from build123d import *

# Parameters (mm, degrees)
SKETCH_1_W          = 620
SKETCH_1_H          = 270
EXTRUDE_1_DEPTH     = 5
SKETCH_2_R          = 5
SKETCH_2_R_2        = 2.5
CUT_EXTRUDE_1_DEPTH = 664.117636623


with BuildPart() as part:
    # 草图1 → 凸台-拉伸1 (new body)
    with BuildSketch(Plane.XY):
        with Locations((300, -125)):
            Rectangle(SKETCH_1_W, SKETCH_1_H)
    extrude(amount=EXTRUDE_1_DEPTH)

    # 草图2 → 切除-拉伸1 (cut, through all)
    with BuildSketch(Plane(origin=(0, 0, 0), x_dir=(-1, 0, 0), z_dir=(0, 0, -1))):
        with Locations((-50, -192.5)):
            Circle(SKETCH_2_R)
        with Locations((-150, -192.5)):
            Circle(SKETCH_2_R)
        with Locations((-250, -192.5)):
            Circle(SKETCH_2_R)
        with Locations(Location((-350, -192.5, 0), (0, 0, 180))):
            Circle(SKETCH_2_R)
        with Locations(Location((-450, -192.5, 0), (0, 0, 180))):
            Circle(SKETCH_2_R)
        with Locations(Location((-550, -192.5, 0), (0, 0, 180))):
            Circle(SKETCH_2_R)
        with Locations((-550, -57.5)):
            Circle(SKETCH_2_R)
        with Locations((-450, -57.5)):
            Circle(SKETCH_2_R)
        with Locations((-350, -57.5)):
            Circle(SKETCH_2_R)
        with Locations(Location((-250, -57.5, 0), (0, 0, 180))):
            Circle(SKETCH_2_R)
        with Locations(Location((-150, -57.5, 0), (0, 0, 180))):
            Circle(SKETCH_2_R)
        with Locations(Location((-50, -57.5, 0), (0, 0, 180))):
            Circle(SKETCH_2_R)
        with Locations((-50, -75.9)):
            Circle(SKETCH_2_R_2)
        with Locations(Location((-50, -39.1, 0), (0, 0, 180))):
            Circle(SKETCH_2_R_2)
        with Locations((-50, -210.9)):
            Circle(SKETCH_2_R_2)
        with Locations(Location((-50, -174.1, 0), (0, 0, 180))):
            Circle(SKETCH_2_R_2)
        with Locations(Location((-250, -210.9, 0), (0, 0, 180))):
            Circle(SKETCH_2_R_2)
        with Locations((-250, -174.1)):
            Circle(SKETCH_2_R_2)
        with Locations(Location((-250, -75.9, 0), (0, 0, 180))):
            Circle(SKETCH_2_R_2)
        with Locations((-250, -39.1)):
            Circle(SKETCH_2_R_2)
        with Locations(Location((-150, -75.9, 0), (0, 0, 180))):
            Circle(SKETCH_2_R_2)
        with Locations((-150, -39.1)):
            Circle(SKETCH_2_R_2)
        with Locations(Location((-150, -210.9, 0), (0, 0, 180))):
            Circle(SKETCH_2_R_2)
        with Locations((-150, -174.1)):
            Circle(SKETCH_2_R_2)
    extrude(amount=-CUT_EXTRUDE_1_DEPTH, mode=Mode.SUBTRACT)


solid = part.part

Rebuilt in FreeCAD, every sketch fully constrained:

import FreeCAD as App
import Part
import Sketcher
Q = App.Units.Quantity


def add_polygon(sketch, points):
    """Adds a closed chain of lines whose ends are joined by coincident constraints."""
    first, n = sketch.GeometryCount, len(points)
    for a, b in zip(points, points[1:] + points[:1]):
        sketch.addGeometry(Part.LineSegment(App.Vector(*a, 0), App.Vector(*b, 0)), False)
    for i in range(n):
        sketch.addConstraint(Sketcher.Constraint("Coincident", first + i, 2, first + (i + 1) % n, 1))

doc = App.newDocument("Part")
body = doc.addObject("PartDesign::Body", "Body")

sketch1 = body.newObject("Sketcher::SketchObject", "Sketch")
sketch1.AttachmentSupport = (doc.getObject("XY_Plane"), [""])
sketch1.MapMode = "FlatFace"
add_polygon(sketch1, [(-10, 10), (-10, -260), (610, -260), (610, 10)])
sketch1.addConstraint([
    Sketcher.Constraint("Vertical", 0),
    Sketcher.Constraint("Horizontal", 1),
    Sketcher.Constraint("Vertical", 2),
    Sketcher.Constraint("Horizontal", 3),
    Sketcher.Constraint("DistanceX", 1, 1, 1, 2, Q("620 mm")),
    Sketcher.Constraint("DistanceY", 0, 2, 0, 1, Q("270 mm")),
    Sketcher.Constraint("DistanceX", 0, 2, -1, 1, Q("10 mm")),
    Sketcher.Constraint("DistanceY", 0, 2, -1, 1, Q("260 mm")),
])
pad1 = body.newObject("PartDesign::Pad", "Pad")
pad1.Profile = sketch1
pad1.Length = 5

sketch2 = body.newObject("Sketcher::SketchObject", "Sketch001")
sketch2.AttachmentSupport = (doc.getObject("XY_Plane"), [""])
sketch2.MapMode = "FlatFace"
sketch2.addGeometry([
    Part.Circle(App.Vector(50, -192.5, 0), App.Vector(0, 0, 1), 5),
    Part.Circle(App.Vector(150, -192.5, 0), App.Vector(0, 0, 1), 5),
    Part.Circle(App.Vector(250, -192.5, 0), App.Vector(0, 0, 1), 5),
    Part.Circle(App.Vector(350, -192.5, 0), App.Vector(0, 0, 1), 5),
    Part.Circle(App.Vector(450, -192.5, 0), App.Vector(0, 0, 1), 5),
    Part.Circle(App.Vector(550, -192.5, 0), App.Vector(0, 0, 1), 5),
    Part.Circle(App.Vector(550, -57.5, 0), App.Vector(0, 0, 1), 5),
    Part.Circle(App.Vector(450, -57.5, 0), App.Vector(0, 0, 1), 5),
    Part.Circle(App.Vector(350, -57.5, 0), App.Vector(0, 0, 1), 5),
    Part.Circle(App.Vector(250, -57.5, 0), App.Vector(0, 0, 1), 5),
    Part.Circle(App.Vector(150, -57.5, 0), App.Vector(0, 0, 1), 5),
    Part.Circle(App.Vector(50, -57.5, 0), App.Vector(0, 0, 1), 5),
    Part.Circle(App.Vector(50, -75.9, 0), App.Vector(0, 0, 1), 2.5),
    Part.Circle(App.Vector(50, -39.1, 0), App.Vector(0, 0, 1), 2.5),
    Part.Circle(App.Vector(50, -210.9, 0), App.Vector(0, 0, 1), 2.5),
    Part.Circle(App.Vector(50, -174.1, 0), App.Vector(0, 0, 1), 2.5),
    Part.Circle(App.Vector(250, -210.9, 0), App.Vector(0, 0, 1), 2.5),
    Part.Circle(App.Vector(250, -174.1, 0), App.Vector(0, 0, 1), 2.5),
    Part.Circle(App.Vector(250, -75.9, 0), App.Vector(0, 0, 1), 2.5),
    Part.Circle(App.Vector(250, -39.1, 0), App.Vector(0, 0, 1), 2.5),
    Part.Circle(App.Vector(150, -75.9, 0), App.Vector(0, 0, 1), 2.5),
    Part.Circle(App.Vector(150, -39.1, 0), App.Vector(0, 0, 1), 2.5),
    Part.Circle(App.Vector(150, -210.9, 0), App.Vector(0, 0, 1), 2.5),
    Part.Circle(App.Vector(150, -174.1, 0), App.Vector(0, 0, 1), 2.5),
], False)
sketch2.addConstraint([
    Sketcher.Constraint("Equal", 0, 1),
    Sketcher.Constraint("Equal", 1, 2),
    Sketcher.Constraint("Equal", 2, 3),
    Sketcher.Constraint("Equal", 3, 4),
    Sketcher.Constraint("Equal", 4, 5),
    Sketcher.Constraint("Equal", 5, 6),
    Sketcher.Constraint("Equal", 6, 7),
    Sketcher.Constraint("Equal", 7, 8),
    Sketcher.Constraint("Equal", 8, 9),
    Sketcher.Constraint("Equal", 9, 10),
    Sketcher.Constraint("Equal", 10, 11),
    Sketcher.Constraint("Equal", 12, 13),
    Sketcher.Constraint("Equal", 13, 14),
    Sketcher.Constraint("Equal", 14, 15),
    Sketcher.Constraint("Equal", 15, 16),
    Sketcher.Constraint("Equal", 16, 17),
    Sketcher.Constraint("Equal", 17, 18),
    Sketcher.Constraint("Equal", 18, 19),
    Sketcher.Constraint("Equal", 19, 20),
    Sketcher.Constraint("Equal", 20, 21),
    Sketcher.Constraint("Equal", 21, 22),
    Sketcher.Constraint("Equal", 22, 23),
    Sketcher.Constraint("Horizontal", 0, 3, 1, 3),
    Sketcher.Constraint("Horizontal", 1, 3, 2, 3),
    Sketcher.Constraint("Horizontal", 2, 3, 3, 3),
    Sketcher.Constraint("Horizontal", 3, 3, 4, 3),
    Sketcher.Constraint("Horizontal", 4, 3, 5, 3),
    Sketcher.Constraint("Horizontal", 6, 3, 7, 3),
    Sketcher.Constraint("Horizontal", 7, 3, 8, 3),
    Sketcher.Constraint("Horizontal", 8, 3, 9, 3),
    Sketcher.Constraint("Horizontal", 9, 3, 10, 3),
    Sketcher.Constraint("Horizontal", 10, 3, 11, 3),
    Sketcher.Constraint("Horizontal", 14, 3, 16, 3),
    Sketcher.Constraint("Horizontal", 15, 3, 17, 3),
    Sketcher.Constraint("Horizontal", 12, 3, 18, 3),
    Sketcher.Constraint("Horizontal", 13, 3, 19, 3),
    Sketcher.Constraint("Horizontal", 18, 3, 20, 3),
    Sketcher.Constraint("Horizontal", 19, 3, 21, 3),
    Sketcher.Constraint("Horizontal", 16, 3, 22, 3),
    Sketcher.Constraint("Horizontal", 17, 3, 23, 3),
    Sketcher.Constraint("Vertical", 5, 3, 6, 3),
    Sketcher.Constraint("Vertical", 4, 3, 7, 3),
    Sketcher.Constraint("Vertical", 3, 3, 8, 3),
    Sketcher.Constraint("Vertical", 2, 3, 9, 3),
    Sketcher.Constraint("Vertical", 1, 3, 10, 3),
    Sketcher.Constraint("Vertical", 0, 3, 11, 3),
    Sketcher.Constraint("Vertical", 11, 3, 12, 3),
    Sketcher.Constraint("Vertical", 12, 3, 13, 3),
    Sketcher.Constraint("Vertical", 13, 3, 14, 3),
    Sketcher.Constraint("Vertical", 14, 3, 15, 3),
    Sketcher.Constraint("Vertical", 9, 3, 16, 3),
    Sketcher.Constraint("Vertical", 16, 3, 17, 3),
    Sketcher.Constraint("Vertical", 17, 3, 18, 3),
    Sketcher.Constraint("Vertical", 18, 3, 19, 3),
    Sketcher.Constraint("Vertical", 10, 3, 20, 3),
    Sketcher.Constraint("Vertical", 20, 3, 21, 3),
    Sketcher.Constraint("Vertical", 21, 3, 22, 3),
    Sketcher.Constraint("Vertical", 22, 3, 23, 3),
    Sketcher.Constraint("Diameter", 0, Q("10 mm")),
    Sketcher.Constraint("Diameter", 12, Q("5 mm")),
    Sketcher.Constraint("DistanceX", -1, 1, 0, 3, Q("50 mm")),
    Sketcher.Constraint("DistanceX", -1, 1, 1, 3, Q("150 mm")),
    Sketcher.Constraint("DistanceX", -1, 1, 2, 3, Q("250 mm")),
    Sketcher.Constraint("DistanceX", -1, 1, 3, 3, Q("350 mm")),
    Sketcher.Constraint("DistanceX", -1, 1, 4, 3, Q("450 mm")),
    Sketcher.Constraint("DistanceX", -1, 1, 5, 3, Q("550 mm")),
    Sketcher.Constraint("DistanceY", 5, 3, 6, 3, Q("135 mm")),
    Sketcher.Constraint("DistanceY", 14, 3, 12, 3, Q("135 mm")),
    Sketcher.Constraint("DistanceY", 17, 3, 19, 3, Q("135 mm")),
    Sketcher.Constraint("DistanceY", 0, 3, -1, 1, Q("192.5 mm")),
    Sketcher.Constraint("DistanceY", 12, 3, -1, 1, Q("75.9 mm")),
    Sketcher.Constraint("DistanceY", 13, 3, -1, 1, Q("39.1 mm")),
])
pocket1 = body.newObject("PartDesign::Pocket", "Pocket")
pocket1.Profile = sketch2
pocket1.Type = "ThroughAll"
pocket1.Reversed = True

doc.recompute()
